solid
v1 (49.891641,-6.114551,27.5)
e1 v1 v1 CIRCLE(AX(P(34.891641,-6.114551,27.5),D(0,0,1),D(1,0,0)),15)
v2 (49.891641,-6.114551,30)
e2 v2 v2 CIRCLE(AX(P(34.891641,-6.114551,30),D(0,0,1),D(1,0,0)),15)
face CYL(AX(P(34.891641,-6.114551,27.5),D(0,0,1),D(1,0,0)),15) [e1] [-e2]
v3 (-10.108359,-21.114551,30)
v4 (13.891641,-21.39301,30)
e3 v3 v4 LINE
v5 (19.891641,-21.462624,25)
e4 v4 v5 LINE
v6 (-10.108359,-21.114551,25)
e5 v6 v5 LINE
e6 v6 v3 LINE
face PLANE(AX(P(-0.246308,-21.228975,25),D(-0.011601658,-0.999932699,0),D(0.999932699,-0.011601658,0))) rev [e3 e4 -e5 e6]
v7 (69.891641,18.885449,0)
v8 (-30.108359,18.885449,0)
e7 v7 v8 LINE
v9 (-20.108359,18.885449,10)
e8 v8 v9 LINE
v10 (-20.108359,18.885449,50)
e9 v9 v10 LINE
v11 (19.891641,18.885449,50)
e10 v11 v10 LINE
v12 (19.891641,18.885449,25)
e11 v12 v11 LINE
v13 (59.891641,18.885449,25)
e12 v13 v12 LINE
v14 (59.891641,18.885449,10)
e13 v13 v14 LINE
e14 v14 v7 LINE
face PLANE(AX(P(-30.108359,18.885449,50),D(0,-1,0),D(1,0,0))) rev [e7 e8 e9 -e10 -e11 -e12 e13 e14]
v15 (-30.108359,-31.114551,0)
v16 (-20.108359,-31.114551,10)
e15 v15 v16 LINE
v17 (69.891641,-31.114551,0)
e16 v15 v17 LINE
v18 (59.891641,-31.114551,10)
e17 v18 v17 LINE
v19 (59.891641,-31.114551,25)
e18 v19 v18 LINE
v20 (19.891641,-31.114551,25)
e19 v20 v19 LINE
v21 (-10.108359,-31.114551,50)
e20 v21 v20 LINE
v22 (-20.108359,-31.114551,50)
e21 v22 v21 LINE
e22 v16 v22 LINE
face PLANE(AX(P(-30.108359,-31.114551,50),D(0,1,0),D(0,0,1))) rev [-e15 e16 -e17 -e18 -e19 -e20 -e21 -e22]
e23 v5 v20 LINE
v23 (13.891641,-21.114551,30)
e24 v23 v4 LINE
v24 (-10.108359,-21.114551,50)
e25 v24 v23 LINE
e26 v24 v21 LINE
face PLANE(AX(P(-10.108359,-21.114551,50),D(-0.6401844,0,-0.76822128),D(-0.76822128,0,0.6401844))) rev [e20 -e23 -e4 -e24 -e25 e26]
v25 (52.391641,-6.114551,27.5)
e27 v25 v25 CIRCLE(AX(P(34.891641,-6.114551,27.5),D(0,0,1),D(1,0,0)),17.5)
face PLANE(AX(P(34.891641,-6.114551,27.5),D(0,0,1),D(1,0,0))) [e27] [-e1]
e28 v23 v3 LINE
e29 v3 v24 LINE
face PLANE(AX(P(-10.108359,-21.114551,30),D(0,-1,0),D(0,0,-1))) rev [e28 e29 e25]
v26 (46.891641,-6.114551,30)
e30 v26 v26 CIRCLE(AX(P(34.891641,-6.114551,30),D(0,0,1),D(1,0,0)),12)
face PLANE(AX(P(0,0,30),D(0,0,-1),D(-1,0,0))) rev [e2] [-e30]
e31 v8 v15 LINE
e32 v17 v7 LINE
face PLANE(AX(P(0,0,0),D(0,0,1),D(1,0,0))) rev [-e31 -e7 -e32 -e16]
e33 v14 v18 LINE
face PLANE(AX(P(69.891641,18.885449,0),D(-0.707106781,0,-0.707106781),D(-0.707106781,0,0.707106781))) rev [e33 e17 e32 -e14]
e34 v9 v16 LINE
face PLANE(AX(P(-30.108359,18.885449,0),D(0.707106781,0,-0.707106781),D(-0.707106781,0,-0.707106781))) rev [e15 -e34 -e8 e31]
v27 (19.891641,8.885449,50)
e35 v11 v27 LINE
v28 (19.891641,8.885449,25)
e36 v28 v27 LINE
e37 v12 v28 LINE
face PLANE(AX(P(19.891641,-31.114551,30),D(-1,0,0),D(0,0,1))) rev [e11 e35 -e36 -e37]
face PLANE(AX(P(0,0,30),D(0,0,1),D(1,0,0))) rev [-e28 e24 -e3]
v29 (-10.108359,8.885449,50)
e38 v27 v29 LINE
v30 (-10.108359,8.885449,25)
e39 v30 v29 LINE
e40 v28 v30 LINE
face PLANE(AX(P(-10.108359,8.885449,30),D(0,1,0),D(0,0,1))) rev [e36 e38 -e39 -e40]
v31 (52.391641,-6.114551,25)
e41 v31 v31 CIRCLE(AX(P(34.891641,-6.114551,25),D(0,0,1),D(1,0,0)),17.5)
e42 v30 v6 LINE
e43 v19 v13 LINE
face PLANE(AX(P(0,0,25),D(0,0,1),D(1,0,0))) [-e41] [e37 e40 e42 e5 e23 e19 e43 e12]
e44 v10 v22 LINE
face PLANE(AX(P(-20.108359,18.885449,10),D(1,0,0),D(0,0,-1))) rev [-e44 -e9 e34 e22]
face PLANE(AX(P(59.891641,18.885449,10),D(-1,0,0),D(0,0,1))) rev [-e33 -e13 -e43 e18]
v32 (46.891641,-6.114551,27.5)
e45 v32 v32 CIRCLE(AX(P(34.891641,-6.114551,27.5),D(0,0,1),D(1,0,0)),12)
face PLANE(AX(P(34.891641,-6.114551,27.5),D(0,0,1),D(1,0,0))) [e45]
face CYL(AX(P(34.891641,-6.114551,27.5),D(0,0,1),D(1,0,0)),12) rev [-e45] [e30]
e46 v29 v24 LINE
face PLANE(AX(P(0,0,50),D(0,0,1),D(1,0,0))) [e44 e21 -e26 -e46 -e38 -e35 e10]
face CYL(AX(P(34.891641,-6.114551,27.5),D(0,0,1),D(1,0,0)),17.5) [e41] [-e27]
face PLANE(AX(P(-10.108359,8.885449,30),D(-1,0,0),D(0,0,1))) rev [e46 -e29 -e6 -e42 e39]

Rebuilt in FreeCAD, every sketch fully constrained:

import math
import FreeCAD as App
import Part
import Sketcher

V = App.Vector


def add_polygon(sketch, points):
    """Adds a closed chain of lines whose ends are joined by coincident constraints."""
    first, n = sketch.GeometryCount, len(points)
    for a, b in zip(points, points[1:] + points[:1]):
        sketch.addGeometry(Part.LineSegment(App.Vector(*a, 0), App.Vector(*b, 0)), False)
    for i in range(n):
        sketch.addConstraint(Sketcher.Constraint("Coincident", first + i, 2, first + (i + 1) % n, 1))

doc = App.newDocument("Part")
body = doc.addObject("PartDesign::Body", "Body")

# Sketch on XY plane
sketch1 = doc.addObject("Sketcher::SketchObject", "Sketch")
body.addObject(sketch1)
sketch1.AttachmentSupport = (doc.XY_Plane, [""])
sketch1.MapMode = "FlatFace"
add_polygon(sketch1, [(-30.108359, 18.885449), (-30.108359, -31.114551), (69.891641, -31.114551), (69.891641, 18.885449)])  # lines 0-3
sketch1.addConstraint(Sketcher.Constraint("Vertical", 0))
sketch1.addConstraint(Sketcher.Constraint("Horizontal", 1))
sketch1.addConstraint(Sketcher.Constraint("Vertical", 2))
sketch1.addConstraint(Sketcher.Constraint("Horizontal", 3))
sketch1.addConstraint(Sketcher.Constraint("DistanceX", 1, 1, 1, 2, 100.0))
sketch1.addConstraint(Sketcher.Constraint("DistanceY", 0, 2, 0, 1, 50.0))
sketch1.addConstraint(Sketcher.Constraint("DistanceX", 0, 2, -1, 1, 30.108359))
sketch1.addConstraint(Sketcher.Constraint("DistanceY", 0, 2, -1, 1, 31.114551))
pad1 = doc.addObject("PartDesign::Pad", "Pad")
body.addObject(pad1)
pad1.Profile = sketch1
pad1.Length = 50

# Sketch on XZ plane
sketch2 = doc.addObject("Sketcher::SketchObject", "Sketch001")
body.addObject(sketch2)
sketch2.AttachmentSupport = (doc.XZ_Plane, [""])
sketch2.MapMode = "FlatFace"
sketch2.AttachmentOffset = App.Placement(V(0, 0, 31.114551), App.Rotation())
add_polygon(sketch2, [(-30.108359, 0), (-20.108359, 10), (-20.108359, 50), (-30.108359, 50)])  # lines 0-3
add_polygon(sketch2, [(59.891641, 10), (69.891641, 0), (69.891641, 50), (59.891641, 50)])  # lines 4-7
sketch2.addConstraint(Sketcher.Constraint("Vertical", 1))
sketch2.addConstraint(Sketcher.Constraint("Horizontal", 2))
sketch2.addConstraint(Sketcher.Constraint("Vertical", 3))
sketch2.addConstraint(Sketcher.Constraint("Vertical", 5))
sketch2.addConstraint(Sketcher.Constraint("Horizontal", 6))
sketch2.addConstraint(Sketcher.Constraint("Vertical", 7))
sketch2.addConstraint(Sketcher.Constraint("PointOnObject", 3, 2, -1))
sketch2.addConstraint(Sketcher.Constraint("PointOnObject", 4, 2, -1))
sketch2.addConstraint(Sketcher.Constraint("Perpendicular", 0, 4))
sketch2.addConstraint(Sketcher.Constraint("Horizontal", 2, 2, 5, 2))
sketch2.addConstraint(Sketcher.Constraint("Horizontal", 0, 2, 7, 2))
sketch2.addConstraint(Sketcher.Constraint("Equal", 2, 6))
sketch2.addConstraint(Sketcher.Constraint("DistanceX", 2, 2, 2, 1, 10.0))
sketch2.addConstraint(Sketcher.Constraint("DistanceY", 1, 1, 1, 2, 40.0))
sketch2.addConstraint(Sketcher.Constraint("DistanceX", 0, 2, 4, 2, 90.0))
sketch2.addConstraint(Sketcher.Constraint("DistanceX", 0, 2, -1, 1, 20.108359))
pocket1 = doc.addObject("PartDesign::Pocket", "Pocket")
body.addObject(pocket1)
pocket1.Profile = sketch2
pocket1.Type = "ThroughAll"

# Sketch on XY plane
sketch3 = doc.addObject("Sketcher::SketchObject", "Sketch002")
body.addObject(sketch3)
sketch3.AttachmentSupport = (doc.XY_Plane, [""])
sketch3.MapMode = "FlatFace"
sketch3.AttachmentOffset = App.Placement(V(0, 0, 50), App.Rotation())
add_polygon(sketch3, [(19.891641, 18.885449), (19.891641, -31.114551), (59.891641, -31.114551), (59.891641, 18.885449)])  # lines 0-3
sketch3.addConstraint(Sketcher.Constraint("Vertical", 0))
sketch3.addConstraint(Sketcher.Constraint("Horizontal", 1))
sketch3.addConstraint(Sketcher.Constraint("Vertical", 2))
sketch3.addConstraint(Sketcher.Constraint("Horizontal", 3))
sketch3.addConstraint(Sketcher.Constraint("DistanceX", 1, 1, 1, 2, 40.0))
sketch3.addConstraint(Sketcher.Constraint("DistanceY", 0, 2, 0, 1, 50.0))
sketch3.addConstraint(Sketcher.Constraint("DistanceX", -1, 1, 0, 2, 19.891641))
sketch3.addConstraint(Sketcher.Constraint("DistanceY", 0, 2, -1, 1, 31.114551))
pocket2 = doc.addObject("PartDesign::Pocket", "Pocket001")
body.addObject(pocket2)
pocket2.Profile = sketch3
pocket2.Length = 20

# Sketch on XY plane
sketch4 = doc.addObject("Sketcher::SketchObject", "Sketch003")
body.addObject(sketch4)
sketch4.AttachmentSupport = (doc.XY_Plane, [""])
sketch4.MapMode = "FlatFace"
sketch4.AttachmentOffset = App.Placement(V(0, 0, 50), App.Rotation())
add_polygon(sketch4, [(-10.108359, 8.885449), (-10.108359, -21.114551), (19.891641, -21.114551), (19.891641, 8.885449)])  # lines 0-3
sketch4.addConstraint(Sketcher.Constraint("Vertical", 0))
sketch4.addConstraint(Sketcher.Constraint("Horizontal", 1))
sketch4.addConstraint(Sketcher.Constraint("Vertical", 2))
sketch4.addConstraint(Sketcher.Constraint("Horizontal", 3))
sketch4.addConstraint(Sketcher.Constraint("Equal", 3, 0))
sketch4.addConstraint(Sketcher.Constraint("DistanceX", 1, 1, 1, 2, 30.0))
sketch4.addConstraint(Sketcher.Constraint("DistanceX", 0, 2, -1, 1, 10.108359))
sketch4.addConstraint(Sketcher.Constraint("DistanceY", 0, 2, -1, 1, 21.114551))
pocket3 = doc.addObject("PartDesign::Pocket", "Pocket002")
body.addObject(pocket3)
pocket3.Profile = sketch4
pocket3.Length = 20

# Sketch on XY plane
sketch5 = doc.addObject("Sketcher::SketchObject", "Sketch004")
body.addObject(sketch5)
sketch5.AttachmentSupport = (doc.XY_Plane, [""])
sketch5.MapMode = "FlatFace"
sketch5.AttachmentOffset = App.Placement(V(0, 0, 30), App.Rotation())
sketch5.addGeometry(Part.LineSegment(V(25.877763, 8.885449, 0), V(-10.108359, 8.885449, 0)), False)
sketch5.addGeometry(Part.LineSegment(V(-10.108359, 8.885449, 0), V(-10.108359, -21.114551, 0)), False)
sketch5.addGeometry(Part.LineSegment(V(-10.108359, -21.114551, 0), V(19.891641, -21.114551, 0)), False)
sketch5.addGeometry(Part.LineSegment(V(19.891641, -21.114551, 0), V(26.628394, -21.540787, 0)), False)
sketch5.addGeometry(Part.ArcOfCircle(Part.Circle(V(34.891641, -6.114551, 0), V(0, 0, 1), 17.5), math.radians(121.002719), math.radians(241.823743)), False)
sketch5.addConstraint(Sketcher.Constraint("Coincident", 0, 2, 1, 1))
sketch5.addConstraint(Sketcher.Constraint("Coincident", 1, 2, 2, 1))
sketch5.addConstraint(Sketcher.Constraint("Coincident", 2, 2, 3, 1))
sketch5.addConstraint(Sketcher.Constraint("Coincident", 3, 2, 4, 2))
sketch5.addConstraint(Sketcher.Constraint("Coincident", 4, 1, 0, 1))
sketch5.addConstraint(Sketcher.Constraint("Horizontal", 0))
sketch5.addConstraint(Sketcher.Constraint("Vertical", 1))
sketch5.addConstraint(Sketcher.Constraint("Horizontal", 2))
sketch5.addConstraint(Sketcher.Constraint("Equal", 2, 1))
sketch5.addConstraint(Sketcher.Constraint("Radius", 4, 17.5))
sketch5.addConstraint(Sketcher.Constraint("DistanceX", 2, 1, 2, 2, 30.0))
sketch5.addConstraint(Sketcher.Constraint("DistanceX", 0, 2, 4, 3, 45.0))
sketch5.addConstraint(Sketcher.Constraint("DistanceY", 4, 3, 0, 2, 15.0))
sketch5.addConstraint(Sketcher.Constraint("DistanceX", -1, 1, 4, 3, 34.891641))
sketch5.addConstraint(Sketcher.Constraint("DistanceY", 4, 3, -1, 1, 6.114551))
sketch5.addConstraint(Sketcher.Constraint("DistanceX", 4, 1, 3, 2, 0.750632))
pocket4 = doc.addObject("PartDesign::Pocket", "Pocket003")
body.addObject(pocket4)
pocket4.Profile = sketch5
pocket4.Length = 2.5

# Sketch on XY plane
sketch6 = doc.addObject("Sketcher::SketchObject", "Sketch005")
body.addObject(sketch6)
sketch6.AttachmentSupport = (doc.XY_Plane, [""])
sketch6.MapMode = "FlatFace"
sketch6.AttachmentOffset = App.Placement(V(0, 0, 30), App.Rotation())
sketch6.addGeometry(Part.LineSegment(V(26.628394, -21.540787, 0), V(19.891641, -21.114551, 0)), False)
sketch6.addGeometry(Part.LineSegment(V(19.891641, -21.114551, 0), V(19.891641, -31.114551, 0)), False)
sketch6.addGeometry(Part.LineSegment(V(19.891641, -31.114551, 0), V(59.891641, -31.114551, 0)), False)
sketch6.addGeometry(Part.LineSegment(V(59.891641, -31.114551, 0), V(59.891641, 18.885449, 0)), False)
sketch6.addGeometry(Part.LineSegment(V(59.891641, 18.885449, 0), V(19.891641, 18.885449, 0)), False)
sketch6.addGeometry(Part.LineSegment(V(19.891641, 18.885449, 0), V(19.891641, 8.885449, 0)), False)
sketch6.addGeometry(Part.LineSegment(V(19.891641, 8.885449, 0), V(25.877763, 8.885449, 0)), False)
sketch6.addGeometry(Part.ArcOfCircle(Part.Circle(V(34.891641, -6.114551, 0), V(0, 0, 1), 17.5), math.radians(0), math.radians(121.002719)), False)
sketch6.addGeometry(Part.ArcOfCircle(Part.Circle(V(34.891641, -6.114551, 0), V(0, 0, 1), 17.5), math.radians(-118.176257), math.radians(0)), False)
sketch6.addConstraint(Sketcher.Constraint("Coincident", 0, 2, 1, 1))
sketch6.addConstraint(Sketcher.Constraint("Coincident", 1, 2, 2, 1))
sketch6.addConstraint(Sketcher.Constraint("Coincident", 2, 2, 3, 1))
sketch6.addConstraint(Sketcher.Constraint("Coincident", 3, 2, 4, 1))
sketch6.addConstraint(Sketcher.Constraint("Coincident", 4, 2, 5, 1))
sketch6.addConstraint(Sketcher.Constraint("Coincident", 5, 2, 6, 1))
sketch6.addConstraint(Sketcher.Constraint("Coincident", 6, 2, 7, 2))
sketch6.addConstraint(Sketcher.Constraint("Tangent", 7, 1, 8, 2))
sketch6.addConstraint(Sketcher.Constraint("Coincident", 8, 1, 0, 1))
sketch6.addConstraint(Sketcher.Constraint("Vertical", 1))
sketch6.addConstraint(Sketcher.Constraint("Horizontal", 2))
sketch6.addConstraint(Sketcher.Constraint("Vertical", 3))
sketch6.addConstraint(Sketcher.Constraint("Horizontal", 4))
sketch6.addConstraint(Sketcher.Constraint("Vertical", 5))
sketch6.addConstraint(Sketcher.Constraint("Horizontal", 6))
sketch6.addConstraint(Sketcher.Constraint("Equal", 7, 8))
sketch6.addConstraint(Sketcher.Constraint("Horizontal", 8, 3, 7, 1))
sketch6.addConstraint(Sketcher.Constraint("Vertical", 1, 2, 4, 2))
sketch6.addConstraint(Sketcher.Constraint("Equal", 1, 5))
sketch6.addConstraint(Sketcher.Constraint("Radius", 7, 17.5))
sketch6.addConstraint(Sketcher.Constraint("DistanceX", 2, 1, 2, 2, 40.0))
sketch6.addConstraint(Sketcher.Constraint("DistanceY", 1, 2, 1, 1, 10.0))
sketch6.addConstraint(Sketcher.Constraint("DistanceY", 3, 1, 3, 2, 50.0))
sketch6.addConstraint(Sketcher.Constraint("DistanceX", 0, 2, 8, 3, 15.0))
sketch6.addConstraint(Sketcher.Constraint("DistanceY", 0, 2, 8, 3, 15.0))
sketch6.addConstraint(Sketcher.Constraint("DistanceX", -1, 1, 7, 3, 34.891641))
sketch6.addConstraint(Sketcher.Constraint("DistanceY", 7, 3, -1, 1, 6.114551))
sketch6.addConstraint(Sketcher.Constraint("Distance", 0, 6.750224))
pocket5 = doc.addObject("PartDesign::Pocket", "Pocket004")
body.addObject(pocket5)
pocket5.Profile = sketch6
pocket5.Length = 5

# Sketch on XY plane
sketch7 = doc.addObject("Sketcher::SketchObject", "Sketch006")
body.addObject(sketch7)
sketch7.AttachmentSupport = (doc.XY_Plane, [""])
sketch7.MapMode = "FlatFace"
sketch7.AttachmentOffset = App.Placement(V(0, 0, 30), App.Rotation())
sketch7.addGeometry(Part.ArcOfCircle(Part.Circle(V(34.891641, -6.114551, 0), V(0, 0, 1), 17.5), math.radians(121.002719), math.radians(241.823743)), False)
sketch7.addGeometry(Part.LineSegment(V(25.877763, 8.885449, 0), V(-10.108359, 8.885449, 0)), False)
sketch7.addGeometry(Part.LineSegment(V(-10.108359, 8.885449, 0), V(-10.108359, -21.114551, 0)), False)
sketch7.addGeometry(Part.LineSegment(V(-10.108359, -21.114551, 0), V(26.628394, -21.540787, 0)), False)
sketch7.addConstraint(Sketcher.Constraint("Coincident", 0, 1, 1, 1))
sketch7.addConstraint(Sketcher.Constraint("Coincident", 1, 2, 2, 1))
sketch7.addConstraint(Sketcher.Constraint("Coincident", 2, 2, 3, 1))
sketch7.addConstraint(Sketcher.Constraint("Coincident", 3, 2, 0, 2))
sketch7.addConstraint(Sketcher.Constraint("Horizontal", 1))
sketch7.addConstraint(Sketcher.Constraint("Vertical", 2))
sketch7.addConstraint(Sketcher.Constraint("Radius", 0, 17.5))
sketch7.addConstraint(Sketcher.Constraint("DistanceY", 2, 2, 2, 1, 30.0))
sketch7.addConstraint(Sketcher.Constraint("DistanceY", 0, 3, 0, 1, 15.0))
sketch7.addConstraint(Sketcher.Constraint("DistanceX", 1, 2, 0, 3, 45.0))
sketch7.addConstraint(Sketcher.Constraint("DistanceX", -1, 1, 0, 3, 34.891641))
sketch7.addConstraint(Sketcher.Constraint("DistanceY", 0, 3, -1, 1, 6.114551))
sketch7.addConstraint(Sketcher.Constraint("DistanceX", 0, 1, 3, 2, 0.750632))
pocket6 = doc.addObject("PartDesign::Pocket", "Pocket005")
body.addObject(pocket6)
pocket6.Profile = sketch7
pocket6.Length = 5

# Sketch on XZ plane
sketch8 = doc.addObject("Sketcher::SketchObject", "Sketch007")
body.addObject(sketch8)
sketch8.AttachmentSupport = (doc.XZ_Plane, [""])
sketch8.MapMode = "FlatFace"
sketch8.AttachmentOffset = App.Placement(V(0, 0, 31.114551), App.Rotation())
add_polygon(sketch8, [(-10.108359, 50), (19.891641, 25), (19.891641, 50)])  # lines 0-2
sketch8.addConstraint(Sketcher.Constraint("Vertical", 1))
sketch8.addConstraint(Sketcher.Constraint("Horizontal", 2))
sketch8.addConstraint(Sketcher.Constraint("DistanceX", 2, 2, 2, 1, 30.0))
sketch8.addConstraint(Sketcher.Constraint("DistanceY", 1, 1, 1, 2, 25.0))
sketch8.addConstraint(Sketcher.Constraint("DistanceY", -1, 1, 0, 2, 25.0))
sketch8.addConstraint(Sketcher.Constraint("DistanceX", -1, 1, 0, 2, 19.891641))
pocket7 = doc.addObject("PartDesign::Pocket", "Pocket006")
body.addObject(pocket7)
pocket7.Profile = sketch8
pocket7.Length = 10

# Sketch on XY plane
sketch9 = doc.addObject("Sketcher::SketchObject", "Sketch008")
body.addObject(sketch9)
sketch9.AttachmentSupport = (doc.XY_Plane, [""])
sketch9.MapMode = "FlatFace"
sketch9.AttachmentOffset = App.Placement(V(0, 0, 30), App.Rotation())
sketch9.addGeometry(Part.Circle(V(34.891641, -6.114551, 0), V(0, 0, 1), 17.5), False)
sketch9.addGeometry(Part.Circle(V(34.891641, -6.114551, 0), V(0, 0, 1), 15), False)
sketch9.addConstraint(Sketcher.Constraint("Coincident", 1, 3, 0, 3))
sketch9.addConstraint(Sketcher.Constraint("Diameter", 0, 35.0))
sketch9.addConstraint(Sketcher.Constraint("Diameter", 1, 30.0))
sketch9.addConstraint(Sketcher.Constraint("DistanceX", -1, 1, 0, 3, 34.891641))
sketch9.addConstraint(Sketcher.Constraint("DistanceY", 0, 3, -1, 1, 6.114551))
pocket8 = doc.addObject("PartDesign::Pocket", "Pocket007")
body.addObject(pocket8)
pocket8.Profile = sketch9
pocket8.Length = 2.5

# Sketch on XY plane
sketch10 = doc.addObject("Sketcher::SketchObject", "Sketch009")
body.addObject(sketch10)
sketch10.AttachmentSupport = (doc.XY_Plane, [""])
sketch10.MapMode = "FlatFace"
sketch10.AttachmentOffset = App.Placement(V(0, 0, 30), App.Rotation())
sketch10.addGeometry(Part.Circle(V(34.891641, -6.114551, 0), V(0, 0, 1), 12), False)
sketch10.addConstraint(Sketcher.Constraint("Diameter", 0, 24.0))
sketch10.addConstraint(Sketcher.Constraint("DistanceX", -1, 1, 0, 3, 34.891641))
sketch10.addConstraint(Sketcher.Constraint("DistanceY", 0, 3, -1, 1, 6.114551))
pocket9 = doc.addObject("PartDesign::Pocket", "Pocket008")
body.addObject(pocket9)
pocket9.Profile = sketch10
pocket9.Length = 2.5

doc.recompute()
